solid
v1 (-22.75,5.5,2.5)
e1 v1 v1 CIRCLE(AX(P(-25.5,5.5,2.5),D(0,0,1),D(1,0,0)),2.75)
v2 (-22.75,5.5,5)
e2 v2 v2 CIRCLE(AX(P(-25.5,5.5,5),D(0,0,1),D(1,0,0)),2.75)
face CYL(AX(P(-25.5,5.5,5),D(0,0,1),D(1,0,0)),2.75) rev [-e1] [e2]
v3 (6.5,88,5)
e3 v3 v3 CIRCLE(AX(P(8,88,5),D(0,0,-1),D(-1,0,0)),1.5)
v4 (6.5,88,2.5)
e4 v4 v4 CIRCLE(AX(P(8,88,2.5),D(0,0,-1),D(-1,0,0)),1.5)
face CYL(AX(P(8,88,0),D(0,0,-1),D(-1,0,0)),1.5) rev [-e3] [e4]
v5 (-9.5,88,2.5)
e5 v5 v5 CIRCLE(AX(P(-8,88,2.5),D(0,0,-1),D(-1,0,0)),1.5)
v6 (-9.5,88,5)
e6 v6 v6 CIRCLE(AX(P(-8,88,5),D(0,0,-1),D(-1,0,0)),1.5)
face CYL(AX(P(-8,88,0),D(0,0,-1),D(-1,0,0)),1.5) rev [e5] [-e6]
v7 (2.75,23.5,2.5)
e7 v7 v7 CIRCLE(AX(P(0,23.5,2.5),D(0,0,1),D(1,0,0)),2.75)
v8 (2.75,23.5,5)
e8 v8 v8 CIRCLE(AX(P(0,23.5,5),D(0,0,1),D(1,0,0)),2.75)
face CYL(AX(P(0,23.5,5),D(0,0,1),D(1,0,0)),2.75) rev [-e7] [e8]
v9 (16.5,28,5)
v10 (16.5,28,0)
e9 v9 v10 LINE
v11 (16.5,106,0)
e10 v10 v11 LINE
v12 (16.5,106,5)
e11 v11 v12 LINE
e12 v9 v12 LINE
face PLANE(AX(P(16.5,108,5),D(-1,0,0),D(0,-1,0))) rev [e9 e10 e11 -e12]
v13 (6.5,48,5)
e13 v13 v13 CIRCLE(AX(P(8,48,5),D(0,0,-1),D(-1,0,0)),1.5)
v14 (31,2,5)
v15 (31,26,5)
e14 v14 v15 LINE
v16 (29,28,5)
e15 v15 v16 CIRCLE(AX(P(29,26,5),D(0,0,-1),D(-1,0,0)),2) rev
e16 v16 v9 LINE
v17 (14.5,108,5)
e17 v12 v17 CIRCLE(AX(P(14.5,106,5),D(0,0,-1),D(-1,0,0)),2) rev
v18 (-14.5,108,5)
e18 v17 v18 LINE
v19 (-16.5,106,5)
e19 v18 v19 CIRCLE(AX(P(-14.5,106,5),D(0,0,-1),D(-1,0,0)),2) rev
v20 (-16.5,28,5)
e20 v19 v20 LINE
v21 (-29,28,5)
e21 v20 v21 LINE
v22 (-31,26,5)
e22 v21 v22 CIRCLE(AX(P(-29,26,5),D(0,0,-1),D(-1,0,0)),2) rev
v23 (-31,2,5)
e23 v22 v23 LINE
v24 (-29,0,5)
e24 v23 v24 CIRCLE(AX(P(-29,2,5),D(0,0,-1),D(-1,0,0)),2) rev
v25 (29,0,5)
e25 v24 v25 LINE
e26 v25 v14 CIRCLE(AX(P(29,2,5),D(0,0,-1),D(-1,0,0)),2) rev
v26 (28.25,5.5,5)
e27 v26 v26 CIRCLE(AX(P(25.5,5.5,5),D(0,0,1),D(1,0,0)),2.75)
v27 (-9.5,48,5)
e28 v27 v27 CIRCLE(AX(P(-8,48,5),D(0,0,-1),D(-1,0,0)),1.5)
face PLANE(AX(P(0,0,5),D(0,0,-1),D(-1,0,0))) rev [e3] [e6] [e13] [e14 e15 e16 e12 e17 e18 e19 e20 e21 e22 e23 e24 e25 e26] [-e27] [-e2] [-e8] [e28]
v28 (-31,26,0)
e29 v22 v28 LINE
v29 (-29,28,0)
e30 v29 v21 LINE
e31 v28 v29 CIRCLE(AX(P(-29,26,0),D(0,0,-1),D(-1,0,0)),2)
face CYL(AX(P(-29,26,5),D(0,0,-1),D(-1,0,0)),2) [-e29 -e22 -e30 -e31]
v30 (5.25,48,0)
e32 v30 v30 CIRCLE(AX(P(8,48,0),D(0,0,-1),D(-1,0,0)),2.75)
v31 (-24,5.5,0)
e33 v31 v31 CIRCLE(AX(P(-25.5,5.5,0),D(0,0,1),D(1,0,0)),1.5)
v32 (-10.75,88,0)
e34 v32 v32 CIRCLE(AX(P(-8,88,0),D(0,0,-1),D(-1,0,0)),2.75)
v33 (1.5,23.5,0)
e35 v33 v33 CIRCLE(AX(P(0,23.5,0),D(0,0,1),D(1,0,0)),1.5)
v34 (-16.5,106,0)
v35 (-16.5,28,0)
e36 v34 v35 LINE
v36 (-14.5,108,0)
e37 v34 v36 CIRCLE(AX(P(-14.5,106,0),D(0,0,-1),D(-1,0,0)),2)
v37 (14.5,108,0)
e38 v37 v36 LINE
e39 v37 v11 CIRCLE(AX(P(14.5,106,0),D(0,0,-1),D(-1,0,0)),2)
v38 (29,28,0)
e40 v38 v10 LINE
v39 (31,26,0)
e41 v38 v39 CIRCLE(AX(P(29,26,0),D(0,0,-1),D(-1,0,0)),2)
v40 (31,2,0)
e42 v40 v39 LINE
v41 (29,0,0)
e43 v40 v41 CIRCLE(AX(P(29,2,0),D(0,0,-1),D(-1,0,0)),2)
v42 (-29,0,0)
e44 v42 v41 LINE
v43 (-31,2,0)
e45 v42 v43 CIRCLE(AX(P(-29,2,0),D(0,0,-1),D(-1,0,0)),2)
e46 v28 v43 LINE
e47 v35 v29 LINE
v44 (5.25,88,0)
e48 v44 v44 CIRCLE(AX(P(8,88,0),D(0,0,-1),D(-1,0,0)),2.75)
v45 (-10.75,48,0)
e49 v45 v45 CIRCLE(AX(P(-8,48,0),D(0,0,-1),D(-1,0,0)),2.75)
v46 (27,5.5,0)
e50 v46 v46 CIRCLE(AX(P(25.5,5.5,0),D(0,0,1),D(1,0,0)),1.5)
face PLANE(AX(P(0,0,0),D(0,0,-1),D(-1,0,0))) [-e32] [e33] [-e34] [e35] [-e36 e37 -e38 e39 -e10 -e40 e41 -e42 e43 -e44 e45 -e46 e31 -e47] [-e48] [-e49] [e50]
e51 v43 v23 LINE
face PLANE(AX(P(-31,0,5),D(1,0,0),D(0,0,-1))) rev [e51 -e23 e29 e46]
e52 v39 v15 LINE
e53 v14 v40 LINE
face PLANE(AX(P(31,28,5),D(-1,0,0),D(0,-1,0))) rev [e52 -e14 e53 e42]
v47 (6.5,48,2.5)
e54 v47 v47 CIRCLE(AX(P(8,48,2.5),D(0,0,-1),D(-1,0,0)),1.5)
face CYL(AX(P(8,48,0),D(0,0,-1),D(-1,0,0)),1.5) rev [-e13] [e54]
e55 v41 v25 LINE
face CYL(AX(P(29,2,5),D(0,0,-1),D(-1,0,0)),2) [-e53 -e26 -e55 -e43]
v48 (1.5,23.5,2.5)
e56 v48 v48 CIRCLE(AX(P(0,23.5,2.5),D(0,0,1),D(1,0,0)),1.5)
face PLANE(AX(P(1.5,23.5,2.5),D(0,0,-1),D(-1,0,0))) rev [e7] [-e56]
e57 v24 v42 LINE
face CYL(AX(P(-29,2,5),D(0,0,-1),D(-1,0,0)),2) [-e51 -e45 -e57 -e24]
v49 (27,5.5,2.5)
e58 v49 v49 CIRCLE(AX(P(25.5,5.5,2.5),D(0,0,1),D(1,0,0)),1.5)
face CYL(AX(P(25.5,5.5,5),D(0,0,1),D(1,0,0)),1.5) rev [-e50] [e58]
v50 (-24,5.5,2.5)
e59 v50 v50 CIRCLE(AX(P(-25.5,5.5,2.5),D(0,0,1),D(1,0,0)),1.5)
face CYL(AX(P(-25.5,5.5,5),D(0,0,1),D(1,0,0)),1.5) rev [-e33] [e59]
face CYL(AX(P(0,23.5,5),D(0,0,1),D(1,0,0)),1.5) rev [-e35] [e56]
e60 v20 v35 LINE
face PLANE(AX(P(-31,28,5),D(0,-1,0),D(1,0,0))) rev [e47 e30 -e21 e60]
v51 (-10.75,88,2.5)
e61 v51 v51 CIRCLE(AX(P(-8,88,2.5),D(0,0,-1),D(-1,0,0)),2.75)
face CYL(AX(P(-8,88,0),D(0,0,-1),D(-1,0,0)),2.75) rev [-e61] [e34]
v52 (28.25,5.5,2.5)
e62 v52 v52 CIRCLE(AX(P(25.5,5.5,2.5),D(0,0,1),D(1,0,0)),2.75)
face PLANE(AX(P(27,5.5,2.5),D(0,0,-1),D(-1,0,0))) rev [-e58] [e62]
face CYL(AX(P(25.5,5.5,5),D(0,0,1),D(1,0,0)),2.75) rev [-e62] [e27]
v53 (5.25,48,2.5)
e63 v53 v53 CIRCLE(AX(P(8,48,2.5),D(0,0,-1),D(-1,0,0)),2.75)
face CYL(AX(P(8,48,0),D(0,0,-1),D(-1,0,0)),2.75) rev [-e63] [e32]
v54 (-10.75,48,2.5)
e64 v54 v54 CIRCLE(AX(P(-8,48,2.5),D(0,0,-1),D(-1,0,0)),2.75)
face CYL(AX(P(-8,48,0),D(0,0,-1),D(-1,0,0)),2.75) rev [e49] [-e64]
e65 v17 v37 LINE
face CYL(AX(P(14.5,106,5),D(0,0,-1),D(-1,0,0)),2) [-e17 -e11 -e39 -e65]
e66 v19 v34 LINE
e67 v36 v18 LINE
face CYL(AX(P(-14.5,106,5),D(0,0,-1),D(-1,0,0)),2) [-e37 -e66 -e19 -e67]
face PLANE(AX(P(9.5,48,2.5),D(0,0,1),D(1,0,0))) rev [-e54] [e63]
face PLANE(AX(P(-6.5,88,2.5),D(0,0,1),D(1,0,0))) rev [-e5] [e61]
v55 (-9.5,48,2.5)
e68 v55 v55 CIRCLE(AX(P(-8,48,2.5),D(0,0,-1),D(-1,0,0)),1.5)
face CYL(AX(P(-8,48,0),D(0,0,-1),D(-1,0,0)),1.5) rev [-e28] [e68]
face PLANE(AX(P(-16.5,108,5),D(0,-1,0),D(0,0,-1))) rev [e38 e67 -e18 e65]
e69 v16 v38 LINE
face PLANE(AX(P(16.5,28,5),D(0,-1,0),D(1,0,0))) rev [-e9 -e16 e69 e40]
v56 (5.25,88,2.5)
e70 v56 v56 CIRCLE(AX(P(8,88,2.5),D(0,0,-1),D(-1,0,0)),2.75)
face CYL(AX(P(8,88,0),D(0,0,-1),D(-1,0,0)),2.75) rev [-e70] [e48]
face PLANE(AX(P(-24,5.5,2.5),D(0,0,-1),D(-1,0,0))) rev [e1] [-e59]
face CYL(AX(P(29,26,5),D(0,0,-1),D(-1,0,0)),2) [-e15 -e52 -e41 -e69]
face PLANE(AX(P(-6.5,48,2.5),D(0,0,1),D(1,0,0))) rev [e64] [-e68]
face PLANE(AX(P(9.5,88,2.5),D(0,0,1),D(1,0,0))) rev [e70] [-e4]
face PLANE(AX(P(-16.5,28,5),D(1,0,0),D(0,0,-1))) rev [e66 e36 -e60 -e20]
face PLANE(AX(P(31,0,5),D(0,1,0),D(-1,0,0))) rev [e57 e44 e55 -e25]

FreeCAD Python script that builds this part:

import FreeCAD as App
import Part
import Sketcher

V = App.Vector
Q = App.Units.Quantity


def edges_at(feature, points):
    """Names of the edges that pass closest to the given points."""
    edges = feature.Shape.Edges
    near = lambda p: min(range(len(edges)), key=lambda i: edges[i].distToShape(Part.Vertex(*p))[0])
    return sorted({f"Edge{near(p) + 1}" for p in points})

doc = App.newDocument("Part")
body = doc.addObject("PartDesign::Body", "Body")

# Sketch on XY plane
sketch1 = body.newObject("Sketcher::SketchObject", "Sketch")
sketch1.AttachmentSupport = (doc.getObject("XY_Plane"), [""])
sketch1.MapMode = "FlatFace"
sketch1.addGeometry(Part.LineSegment(V(-31, 28, 0), V(-31, 0, 0)), False)
sketch1.addGeometry(Part.LineSegment(V(-31, 0, 0), V(31, 0, 0)), False)
sketch1.addGeometry(Part.LineSegment(V(31, 0, 0), V(31, 28, 0)), False)
sketch1.addGeometry(Part.LineSegment(V(31, 28, 0), V(16, 28, 0)), False)
sketch1.addGeometry(Part.LineSegment(V(16, 28, 0), V(16, 108, 0)), False)
sketch1.addGeometry(Part.LineSegment(V(16, 108, 0), V(-16, 108, 0)), False)
sketch1.addGeometry(Part.LineSegment(V(-16, 108, 0), V(-16, 28, 0)), False)
sketch1.addGeometry(Part.LineSegment(V(-16, 28, 0), V(-31, 28, 0)), False)
sketch1.addConstraint(Sketcher.Constraint("Coincident", 0, 2, 1, 1))
sketch1.addConstraint(Sketcher.Constraint("Coincident", 1, 2, 2, 1))
sketch1.addConstraint(Sketcher.Constraint("Coincident", 2, 2, 3, 1))
sketch1.addConstraint(Sketcher.Constraint("Coincident", 3, 2, 4, 1))
sketch1.addConstraint(Sketcher.Constraint("Coincident", 4, 2, 5, 1))
sketch1.addConstraint(Sketcher.Constraint("Coincident", 5, 2, 6, 1))
sketch1.addConstraint(Sketcher.Constraint("Coincident", 6, 2, 7, 1))
sketch1.addConstraint(Sketcher.Constraint("Coincident", 7, 2, 0, 1))
sketch1.addConstraint(Sketcher.Constraint("Vertical", 0))
sketch1.addConstraint(Sketcher.Constraint("Horizontal", 1))
sketch1.addConstraint(Sketcher.Constraint("Vertical", 2))
sketch1.addConstraint(Sketcher.Constraint("Horizontal", 3))
sketch1.addConstraint(Sketcher.Constraint("Vertical", 4))
sketch1.addConstraint(Sketcher.Constraint("Horizontal", 5))
sketch1.addConstraint(Sketcher.Constraint("Vertical", 6))
sketch1.addConstraint(Sketcher.Constraint("Horizontal", 7))
sketch1.addConstraint(Sketcher.Constraint("Symmetric", 0, 2, 1, 2, -1, 1))
sketch1.addConstraint(Sketcher.Constraint("Symmetric", 3, 2, 6, 2, -2))
sketch1.addConstraint(Sketcher.Constraint("DistanceX", 1, 1, 1, 2, Q("62 mm")))
sketch1.addConstraint(Sketcher.Constraint("DistanceX", 5, 2, 5, 1, Q("33 mm")))
sketch1.addConstraint(Sketcher.Constraint("DistanceY", 0, 2, 0, 1, Q("28 mm")))
sketch1.addConstraint(Sketcher.Constraint("DistanceY", 4, 1, 4, 2, Q("80 mm")))
pad1 = body.newObject("PartDesign::Pad", "Pad")
pad1.Profile = sketch1
pad1.Length = 5

# Sketch on XY plane
sketch2 = body.newObject("Sketcher::SketchObject", "Sketch001")
sketch2.AttachmentSupport = (doc.getObject("XY_Plane"), [""])
sketch2.MapMode = "FlatFace"
sketch2.AttachmentOffset = App.Placement(V(0, 0, 5), App.Rotation())
sketch2.addGeometry(Part.Circle(V(-25.5, 5.5, 0), V(0, 0, 1), 1.5), False)
sketch2.addGeometry(Part.Circle(V(25.5, 5.5, 0), V(0, 0, 1), 1.5), False)
sketch2.addGeometry(Part.Circle(V(0, 23.5, 0), V(0, 0, 1), 1.5), False)
sketch2.addConstraint(Sketcher.Constraint("Equal", 0, 1))
sketch2.addConstraint(Sketcher.Constraint("Equal", 1, 2))
sketch2.addConstraint(Sketcher.Constraint("Symmetric", 0, 3, 1, 3, -2))
sketch2.addConstraint(Sketcher.Constraint("PointOnObject", 2, 3, -2))
sketch2.addConstraint(Sketcher.Constraint("Diameter", 0, Q("3 mm")))
sketch2.addConstraint(Sketcher.Constraint("DistanceX", 0, 3, 1, 3, Q("51 mm")))
sketch2.addConstraint(Sketcher.Constraint("DistanceY", 0, 3, 2, 3, Q("18 mm")))
sketch2.addConstraint(Sketcher.Constraint("DistanceY", -1, 1, 0, 3, Q("5.5 mm")))
doc.recompute()
hole = body.newObject("PartDesign::Hole", "Hole")
hole.Profile = sketch2
hole.ThreadType = "None"
hole.Diameter = 3
hole.DepthType = "ThroughAll"
hole.HoleCutType = "Counterbore"
hole.HoleCutDiameter = 5.5
hole.HoleCutDepth = 2.5

# Sketch on XY plane
sketch3 = body.newObject("Sketcher::SketchObject", "Sketch002")
sketch3.AttachmentSupport = (doc.getObject("XY_Plane"), [""])
sketch3.MapMode = "FlatFace"
sketch3.addGeometry(Part.Circle(V(8, 48, 0), V(0, 0, 1), 1.5), False)
sketch3.addGeometry(Part.Circle(V(-8, 48, 0), V(0, 0, 1), 1.5), False)
sketch3.addGeometry(Part.Circle(V(-8, 88, 0), V(0, 0, 1), 1.5), False)
sketch3.addGeometry(Part.Circle(V(8, 88, 0), V(0, 0, 1), 1.5), False)
sketch3.addConstraint(Sketcher.Constraint("Equal", 0, 1))
sketch3.addConstraint(Sketcher.Constraint("Equal", 1, 2))
sketch3.addConstraint(Sketcher.Constraint("Equal", 2, 3))
sketch3.addConstraint(Sketcher.Constraint("Symmetric", 0, 3, 1, 3, -2))
sketch3.addConstraint(Sketcher.Constraint("Symmetric", 2, 3, 3, 3, -2))
sketch3.addConstraint(Sketcher.Constraint("Vertical", 1, 3, 2, 3))
sketch3.addConstraint(Sketcher.Constraint("Diameter", 0, Q("3 mm")))
sketch3.addConstraint(Sketcher.Constraint("DistanceX", -1, 1, 0, 3, Q("8 mm")))
sketch3.addConstraint(Sketcher.Constraint("DistanceY", -1, 1, 0, 3, Q("48 mm")))
sketch3.addConstraint(Sketcher.Constraint("DistanceY", -1, 1, 2, 3, Q("88 mm")))
doc.recompute()
hole2 = body.newObject("PartDesign::Hole", "Hole001")
hole2.Profile = sketch3
hole2.ThreadType = "None"
hole2.Diameter = 3
hole2.DepthType = "ThroughAll"
hole2.HoleCutType = "Counterbore"
hole2.HoleCutDiameter = 5.5
hole2.HoleCutDepth = 2.5
hole2.Reversed = True
doc.recompute()

fillet = body.newObject("PartDesign::Fillet", "Fillet")
fillet.Base = (hole2, edges_at(hole2, [
    (-31, 0, 2.5),
    (-31, 28, 2.5),
    (-16.5, 108, 2.5),
    (16.5, 108, 2.5),
    (31, 28, 2.5),
    (31, 0, 2.5),
]))
fillet.Radius = 2

doc.recompute()
